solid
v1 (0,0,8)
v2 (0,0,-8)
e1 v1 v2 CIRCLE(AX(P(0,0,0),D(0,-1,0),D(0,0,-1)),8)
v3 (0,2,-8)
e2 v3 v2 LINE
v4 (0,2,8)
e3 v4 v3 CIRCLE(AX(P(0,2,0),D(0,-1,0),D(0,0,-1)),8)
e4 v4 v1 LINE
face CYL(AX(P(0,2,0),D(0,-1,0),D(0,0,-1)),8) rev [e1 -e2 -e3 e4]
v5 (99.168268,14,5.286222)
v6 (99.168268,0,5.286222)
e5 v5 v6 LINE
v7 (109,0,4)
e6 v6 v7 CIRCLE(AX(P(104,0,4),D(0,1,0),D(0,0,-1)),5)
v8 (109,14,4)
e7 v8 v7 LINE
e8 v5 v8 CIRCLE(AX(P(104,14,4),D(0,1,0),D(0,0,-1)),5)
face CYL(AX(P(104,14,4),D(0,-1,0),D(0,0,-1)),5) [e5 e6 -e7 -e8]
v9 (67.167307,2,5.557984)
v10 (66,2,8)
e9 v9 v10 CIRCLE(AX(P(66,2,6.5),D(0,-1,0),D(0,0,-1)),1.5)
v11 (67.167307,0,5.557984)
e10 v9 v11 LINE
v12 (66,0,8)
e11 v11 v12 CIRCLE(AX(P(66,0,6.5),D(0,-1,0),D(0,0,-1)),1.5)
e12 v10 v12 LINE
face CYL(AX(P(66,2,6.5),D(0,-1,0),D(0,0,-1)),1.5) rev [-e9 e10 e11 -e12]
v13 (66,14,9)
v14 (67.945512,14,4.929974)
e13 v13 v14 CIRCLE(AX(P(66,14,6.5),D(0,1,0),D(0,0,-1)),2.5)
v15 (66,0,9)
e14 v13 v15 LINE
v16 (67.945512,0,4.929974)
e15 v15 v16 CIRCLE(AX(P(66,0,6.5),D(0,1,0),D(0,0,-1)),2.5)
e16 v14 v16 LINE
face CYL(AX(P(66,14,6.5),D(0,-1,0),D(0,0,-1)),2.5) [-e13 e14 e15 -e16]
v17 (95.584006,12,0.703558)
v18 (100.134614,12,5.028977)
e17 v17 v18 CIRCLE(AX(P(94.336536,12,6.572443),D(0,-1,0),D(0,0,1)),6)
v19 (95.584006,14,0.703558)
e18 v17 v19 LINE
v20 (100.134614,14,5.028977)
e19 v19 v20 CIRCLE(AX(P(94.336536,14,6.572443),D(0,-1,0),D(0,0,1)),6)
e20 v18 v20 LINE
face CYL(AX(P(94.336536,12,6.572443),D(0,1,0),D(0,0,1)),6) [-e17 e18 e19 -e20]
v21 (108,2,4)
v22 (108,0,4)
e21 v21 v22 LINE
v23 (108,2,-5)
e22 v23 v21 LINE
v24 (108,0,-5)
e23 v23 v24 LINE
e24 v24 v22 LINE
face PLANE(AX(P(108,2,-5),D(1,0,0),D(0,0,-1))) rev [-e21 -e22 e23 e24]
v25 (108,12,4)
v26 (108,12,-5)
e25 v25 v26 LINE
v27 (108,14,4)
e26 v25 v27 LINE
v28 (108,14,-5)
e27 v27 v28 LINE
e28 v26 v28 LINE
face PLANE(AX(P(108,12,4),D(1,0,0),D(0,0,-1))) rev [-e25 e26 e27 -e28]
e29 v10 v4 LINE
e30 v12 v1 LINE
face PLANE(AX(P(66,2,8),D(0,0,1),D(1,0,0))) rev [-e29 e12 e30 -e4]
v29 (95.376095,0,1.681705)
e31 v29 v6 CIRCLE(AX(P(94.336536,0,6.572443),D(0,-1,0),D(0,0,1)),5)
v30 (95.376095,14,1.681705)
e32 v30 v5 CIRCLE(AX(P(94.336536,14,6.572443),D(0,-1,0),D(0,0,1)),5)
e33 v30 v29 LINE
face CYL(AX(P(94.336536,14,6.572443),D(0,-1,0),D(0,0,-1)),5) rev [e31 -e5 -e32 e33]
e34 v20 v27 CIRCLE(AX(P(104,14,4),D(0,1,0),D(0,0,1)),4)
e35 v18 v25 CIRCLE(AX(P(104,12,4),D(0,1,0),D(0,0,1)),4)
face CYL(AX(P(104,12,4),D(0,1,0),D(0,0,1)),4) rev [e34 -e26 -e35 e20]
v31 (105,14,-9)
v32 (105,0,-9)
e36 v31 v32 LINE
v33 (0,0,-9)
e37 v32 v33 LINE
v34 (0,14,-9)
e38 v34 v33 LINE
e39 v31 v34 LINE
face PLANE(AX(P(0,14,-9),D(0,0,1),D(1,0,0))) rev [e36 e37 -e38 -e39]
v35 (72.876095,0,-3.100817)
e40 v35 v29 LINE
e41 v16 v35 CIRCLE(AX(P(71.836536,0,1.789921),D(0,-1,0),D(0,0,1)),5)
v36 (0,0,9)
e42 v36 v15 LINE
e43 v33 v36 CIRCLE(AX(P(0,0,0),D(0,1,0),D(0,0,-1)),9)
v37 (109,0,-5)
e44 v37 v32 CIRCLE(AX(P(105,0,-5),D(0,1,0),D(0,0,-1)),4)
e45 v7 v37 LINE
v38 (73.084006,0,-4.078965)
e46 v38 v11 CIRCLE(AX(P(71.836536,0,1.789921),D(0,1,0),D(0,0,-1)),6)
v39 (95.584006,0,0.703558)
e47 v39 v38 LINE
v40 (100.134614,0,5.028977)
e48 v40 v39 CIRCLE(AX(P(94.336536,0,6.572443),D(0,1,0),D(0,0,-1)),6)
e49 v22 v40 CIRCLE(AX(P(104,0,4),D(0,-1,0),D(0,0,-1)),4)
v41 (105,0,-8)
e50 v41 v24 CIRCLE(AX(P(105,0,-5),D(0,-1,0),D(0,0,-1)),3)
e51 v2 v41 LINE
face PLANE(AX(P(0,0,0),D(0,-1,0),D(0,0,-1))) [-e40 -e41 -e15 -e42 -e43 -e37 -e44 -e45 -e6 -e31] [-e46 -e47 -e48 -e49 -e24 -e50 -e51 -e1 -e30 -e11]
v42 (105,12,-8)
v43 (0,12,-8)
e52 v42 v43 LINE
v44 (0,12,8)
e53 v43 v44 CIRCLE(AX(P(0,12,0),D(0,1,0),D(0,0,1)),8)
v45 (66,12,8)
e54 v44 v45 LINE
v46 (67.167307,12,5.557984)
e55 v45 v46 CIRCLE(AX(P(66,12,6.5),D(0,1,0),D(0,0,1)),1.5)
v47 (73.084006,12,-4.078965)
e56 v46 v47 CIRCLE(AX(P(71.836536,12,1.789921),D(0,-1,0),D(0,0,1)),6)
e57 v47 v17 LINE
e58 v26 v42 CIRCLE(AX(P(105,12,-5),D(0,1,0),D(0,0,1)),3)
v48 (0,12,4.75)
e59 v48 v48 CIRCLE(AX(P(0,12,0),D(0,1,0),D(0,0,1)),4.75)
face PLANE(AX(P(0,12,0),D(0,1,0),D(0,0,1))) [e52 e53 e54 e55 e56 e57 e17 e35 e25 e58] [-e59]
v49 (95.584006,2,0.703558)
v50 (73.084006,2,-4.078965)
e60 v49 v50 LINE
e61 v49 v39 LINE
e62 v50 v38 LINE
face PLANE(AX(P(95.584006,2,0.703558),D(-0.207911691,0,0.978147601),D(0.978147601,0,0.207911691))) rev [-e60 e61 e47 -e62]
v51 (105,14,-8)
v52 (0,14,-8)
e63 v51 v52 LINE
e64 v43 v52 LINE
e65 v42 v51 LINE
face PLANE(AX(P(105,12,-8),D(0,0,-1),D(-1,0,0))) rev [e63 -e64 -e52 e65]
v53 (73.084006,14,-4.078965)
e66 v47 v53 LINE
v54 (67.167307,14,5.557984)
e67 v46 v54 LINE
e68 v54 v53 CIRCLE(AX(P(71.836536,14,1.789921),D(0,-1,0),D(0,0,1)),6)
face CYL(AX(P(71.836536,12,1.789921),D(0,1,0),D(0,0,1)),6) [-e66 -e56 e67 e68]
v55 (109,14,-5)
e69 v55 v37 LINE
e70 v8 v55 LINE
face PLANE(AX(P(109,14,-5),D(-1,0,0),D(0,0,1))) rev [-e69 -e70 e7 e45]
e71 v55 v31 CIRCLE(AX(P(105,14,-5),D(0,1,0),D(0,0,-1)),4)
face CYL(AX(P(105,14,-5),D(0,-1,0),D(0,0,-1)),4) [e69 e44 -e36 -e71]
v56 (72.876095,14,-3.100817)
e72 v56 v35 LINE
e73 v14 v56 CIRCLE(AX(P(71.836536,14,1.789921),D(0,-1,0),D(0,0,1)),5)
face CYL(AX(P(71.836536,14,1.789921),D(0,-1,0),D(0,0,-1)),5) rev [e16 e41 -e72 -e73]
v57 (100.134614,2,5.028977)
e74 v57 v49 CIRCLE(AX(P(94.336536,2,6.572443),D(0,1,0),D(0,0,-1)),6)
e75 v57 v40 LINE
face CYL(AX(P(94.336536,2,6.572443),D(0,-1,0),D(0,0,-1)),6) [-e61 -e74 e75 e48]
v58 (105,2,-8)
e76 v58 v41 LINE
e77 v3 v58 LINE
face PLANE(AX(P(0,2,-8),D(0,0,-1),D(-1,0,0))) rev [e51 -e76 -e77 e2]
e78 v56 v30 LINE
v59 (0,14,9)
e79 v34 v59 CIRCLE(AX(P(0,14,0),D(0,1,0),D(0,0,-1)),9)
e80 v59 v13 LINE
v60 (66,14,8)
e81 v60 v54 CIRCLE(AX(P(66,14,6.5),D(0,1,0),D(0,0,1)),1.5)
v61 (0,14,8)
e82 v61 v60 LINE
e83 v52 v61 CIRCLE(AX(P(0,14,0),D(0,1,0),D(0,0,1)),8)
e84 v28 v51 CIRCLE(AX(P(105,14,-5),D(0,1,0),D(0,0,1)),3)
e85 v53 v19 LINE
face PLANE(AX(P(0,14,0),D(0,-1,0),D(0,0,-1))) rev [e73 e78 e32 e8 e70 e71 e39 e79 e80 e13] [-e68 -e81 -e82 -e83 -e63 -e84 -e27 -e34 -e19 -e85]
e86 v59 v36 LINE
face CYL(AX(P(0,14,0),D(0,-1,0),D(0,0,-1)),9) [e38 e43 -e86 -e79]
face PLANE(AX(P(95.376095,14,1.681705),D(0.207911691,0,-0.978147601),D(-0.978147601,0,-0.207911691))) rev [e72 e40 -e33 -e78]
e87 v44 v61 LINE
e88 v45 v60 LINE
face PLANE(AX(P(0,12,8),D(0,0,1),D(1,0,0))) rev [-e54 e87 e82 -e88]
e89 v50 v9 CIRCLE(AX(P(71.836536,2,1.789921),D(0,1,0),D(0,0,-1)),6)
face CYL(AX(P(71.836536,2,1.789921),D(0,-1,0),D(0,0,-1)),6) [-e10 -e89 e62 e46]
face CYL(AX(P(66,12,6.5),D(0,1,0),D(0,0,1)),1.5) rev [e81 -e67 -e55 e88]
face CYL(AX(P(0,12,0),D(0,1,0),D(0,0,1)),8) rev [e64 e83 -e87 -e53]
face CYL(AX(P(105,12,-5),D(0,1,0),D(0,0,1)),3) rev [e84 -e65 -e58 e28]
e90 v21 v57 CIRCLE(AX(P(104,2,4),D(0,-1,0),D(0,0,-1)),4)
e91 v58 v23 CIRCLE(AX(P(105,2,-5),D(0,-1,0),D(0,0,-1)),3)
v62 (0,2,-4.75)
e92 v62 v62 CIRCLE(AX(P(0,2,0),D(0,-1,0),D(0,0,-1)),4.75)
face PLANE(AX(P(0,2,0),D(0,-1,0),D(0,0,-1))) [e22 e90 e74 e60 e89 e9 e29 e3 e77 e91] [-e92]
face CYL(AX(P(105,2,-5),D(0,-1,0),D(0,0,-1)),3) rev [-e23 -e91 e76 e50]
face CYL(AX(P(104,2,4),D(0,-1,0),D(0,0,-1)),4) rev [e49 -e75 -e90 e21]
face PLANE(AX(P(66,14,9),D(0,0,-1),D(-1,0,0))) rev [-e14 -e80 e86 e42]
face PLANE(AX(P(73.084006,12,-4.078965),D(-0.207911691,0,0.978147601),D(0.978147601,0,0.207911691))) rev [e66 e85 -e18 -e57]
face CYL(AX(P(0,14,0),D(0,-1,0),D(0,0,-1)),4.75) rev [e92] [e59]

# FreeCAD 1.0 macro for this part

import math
import FreeCAD as App
import Part
import Sketcher
from FreeCAD import Vector
Q = App.Units.Quantity

doc = App.newDocument("Part")
body = doc.addObject("PartDesign::Body", "Body")

# Sketch on XZ plane
sketch1 = body.newObject("Sketcher::SketchObject", "Sketch")
sketch1.AttachmentSupport = (doc.getObject("XZ_Plane"), [""])
sketch1.MapMode = "FlatFace"
sketch1.addGeometry(Part.LineSegment(Vector(105, -9, 0), Vector(0, -9, 0)), False)
sketch1.addGeometry(Part.ArcOfCircle(Part.Circle(Vector(0, 0, 0), Vector(0, 0, 1), 9), math.radians(90), math.radians(270)), False)
sketch1.addGeometry(Part.LineSegment(Vector(0, 9, 0), Vector(66, 9, 0)), False)
sketch1.addGeometry(Part.ArcOfCircle(Part.Circle(Vector(66, 6.5, 0), Vector(0, 0, 1), 2.5), math.radians(-39), math.radians(90)), False)
sketch1.addGeometry(Part.ArcOfCircle(Part.Circle(Vector(71.8, 1.8, 0), Vector(0, 0, 1), 5), math.radians(141), math.radians(282)), False)
sketch1.addGeometry(Part.LineSegment(Vector(72.9, -3.1, 0), Vector(95.4, 1.7, 0)), False)
sketch1.addGeometry(Part.ArcOfCircle(Part.Circle(Vector(94.3, 6.6, 0), Vector(0, 0, 1), 5), math.radians(-78), math.radians(-15)), False)
sketch1.addGeometry(Part.ArcOfCircle(Part.Circle(Vector(104, 4, 0), Vector(0, 0, 1), 5), math.radians(0), math.radians(165)), False)
sketch1.addGeometry(Part.LineSegment(Vector(109, 4, 0), Vector(109, -5, 0)), False)
sketch1.addGeometry(Part.ArcOfCircle(Part.Circle(Vector(105, -5, 0), Vector(0, 0, 1), 4), math.radians(-90), math.radians(0)), False)
sketch1.addGeometry(Part.Circle(Vector(0, 0, 0), Vector(0, 0, 1), 4.8), False)
sketch1.addConstraint(Sketcher.Constraint("Tangent", 0, 2, 1, 2))
sketch1.addConstraint(Sketcher.Constraint("Tangent", 1, 1, 2, 1))
sketch1.addConstraint(Sketcher.Constraint("Tangent", 2, 2, 3, 2))
sketch1.addConstraint(Sketcher.Constraint("Tangent", 3, 1, 4, 1))
sketch1.addConstraint(Sketcher.Constraint("Tangent", 4, 2, 5, 1))
sketch1.addConstraint(Sketcher.Constraint("Tangent", 5, 2, 6, 1))
sketch1.addConstraint(Sketcher.Constraint("Tangent", 6, 2, 7, 2))
sketch1.addConstraint(Sketcher.Constraint("Tangent", 7, 1, 8, 1))
sketch1.addConstraint(Sketcher.Constraint("Tangent", 8, 2, 9, 2))
sketch1.addConstraint(Sketcher.Constraint("Tangent", 9, 1, 0, 1))
sketch1.addConstraint(Sketcher.Constraint("Horizontal", 0))
sketch1.addConstraint(Sketcher.Constraint("Horizontal", 2))
sketch1.addConstraint(Sketcher.Constraint("Vertical", 8))
sketch1.addConstraint(Sketcher.Constraint("Coincident", 1, 3, -1, 1))
sketch1.addConstraint(Sketcher.Constraint("Coincident", 10, 3, -1, 1))
sketch1.addConstraint(Sketcher.Constraint("Equal", 4, 6))
sketch1.addConstraint(Sketcher.Constraint("Equal", 6, 7))
sketch1.addConstraint(Sketcher.Constraint("Radius", 1, 9.0))
sketch1.addConstraint(Sketcher.Constraint("Radius", 4, 5.0))
sketch1.addConstraint(Sketcher.Constraint("Radius", 9, 4.0))
sketch1.addConstraint(Sketcher.Constraint("Diameter", 10, 9.5))
sketch1.addConstraint(Sketcher.Constraint("Radius", 3, 2.5))
sketch1.addConstraint(Sketcher.Constraint("DistanceX", 0, 2, 0, 1, 105.0))
sketch1.addConstraint(Sketcher.Constraint("DistanceX", 2, 1, 2, 2, 66.0))
sketch1.addConstraint(Sketcher.Constraint("DistanceY", 8, 2, 8, 1, 9.0))
sketch1.addConstraint(Sketcher.Constraint("Angle", 5, Q("12 deg")))
sketch1.addConstraint(Sketcher.Constraint("DistanceX", 4, 3, 6, 3, 22.5))
pad1 = body.newObject("PartDesign::Pad", "Pad")
pad1.Profile = sketch1
pad1.Length = 14
pad1.Reversed = True

# Sketch on XZ plane
sketch2 = body.newObject("Sketcher::SketchObject", "Sketch001")
sketch2.AttachmentSupport = (doc.getObject("XZ_Plane"), [""])
sketch2.MapMode = "FlatFace"
sketch2.AttachmentOffset = App.Placement(Vector(0, 0, -14), App.Rotation())
sketch2.addGeometry(Part.LineSegment(Vector(0, 8, 0), Vector(66, 8, 0)), False)
sketch2.addGeometry(Part.ArcOfCircle(Part.Circle(Vector(66, 6.5, 0), Vector(0, 0, 1), 1.5), math.radians(-39), math.radians(90)), False)
sketch2.addGeometry(Part.ArcOfCircle(Part.Circle(Vector(71.8, 1.8, 0), Vector(0, 0, 1), 6), math.radians(141), math.radians(282)), False)
sketch2.addGeometry(Part.LineSegment(Vector(73.1, -4.1, 0), Vector(95.6, 0.7, 0)), False)
sketch2.addGeometry(Part.ArcOfCircle(Part.Circle(Vector(94.3, 6.6, 0), Vector(0, 0, 1), 6), math.radians(-78), math.radians(-15)), False)
sketch2.addGeometry(Part.ArcOfCircle(Part.Circle(Vector(104, 4, 0), Vector(0, 0, 1), 4), math.radians(0), math.radians(165)), False)
sketch2.addGeometry(Part.LineSegment(Vector(108, 4, 0), Vector(108, -5, 0)), False)
sketch2.addGeometry(Part.ArcOfCircle(Part.Circle(Vector(105, -5, 0), Vector(0, 0, 1), 3), math.radians(-90), math.radians(0)), False)
sketch2.addGeometry(Part.LineSegment(Vector(105, -8, 0), Vector(0, -8, 0)), False)
sketch2.addGeometry(Part.ArcOfCircle(Part.Circle(Vector(0, 0, 0), Vector(0, 0, 1), 8), math.radians(90), math.radians(270)), False)
sketch2.addConstraint(Sketcher.Constraint("Tangent", 0, 2, 1, 2))
sketch2.addConstraint(Sketcher.Constraint("Tangent", 1, 1, 2, 1))
sketch2.addConstraint(Sketcher.Constraint("Tangent", 2, 2, 3, 1))
sketch2.addConstraint(Sketcher.Constraint("Tangent", 3, 2, 4, 1))
sketch2.addConstraint(Sketcher.Constraint("Tangent", 4, 2, 5, 2))
sketch2.addConstraint(Sketcher.Constraint("Tangent", 5, 1, 6, 1))
sketch2.addConstraint(Sketcher.Constraint("Tangent", 6, 2, 7, 2))
sketch2.addConstraint(Sketcher.Constraint("Tangent", 7, 1, 8, 1))
sketch2.addConstraint(Sketcher.Constraint("Tangent", 8, 2, 9, 2))
sketch2.addConstraint(Sketcher.Constraint("Tangent", 9, 1, 0, 1))
sketch2.addConstraint(Sketcher.Constraint("Horizontal", 0))
sketch2.addConstraint(Sketcher.Constraint("Vertical", 6))
sketch2.addConstraint(Sketcher.Constraint("Horizontal", 8))
sketch2.addConstraint(Sketcher.Constraint("Coincident", 9, 3, -1, 1))
sketch2.addConstraint(Sketcher.Constraint("Equal", 2, 4))
sketch2.addConstraint(Sketcher.Constraint("Radius", 2, 6.0))
sketch2.addConstraint(Sketcher.Constraint("Radius", 5, 4.0))
sketch2.addConstraint(Sketcher.Constraint("Radius", 7, 3.0))
sketch2.addConstraint(Sketcher.Constraint("Radius", 9, 8.0))
sketch2.addConstraint(Sketcher.Constraint("Radius", 1, 1.5))
sketch2.addConstraint(Sketcher.Constraint("DistanceX", 0, 1, 0, 2, 66.0))
sketch2.addConstraint(Sketcher.Constraint("DistanceX", 8, 2, 8, 1, 105.0))
sketch2.addConstraint(Sketcher.Constraint("DistanceY", 6, 2, 6, 1, 9.0))
sketch2.addConstraint(Sketcher.Constraint("Angle", 3, Q("12 deg")))
sketch2.addConstraint(Sketcher.Constraint("DistanceX", 2, 3, 4, 3, 22.5))
pocket1 = body.newObject("PartDesign::Pocket", "Pocket")
pocket1.Profile = sketch2
pocket1.Length = 2
pocket1.Reversed = True

# Sketch on XZ plane
sketch3 = body.newObject("Sketcher::SketchObject", "Sketch002")
sketch3.AttachmentSupport = (doc.getObject("XZ_Plane"), [""])
sketch3.MapMode = "FlatFace"
sketch3.addGeometry(Part.LineSegment(Vector(0, -8, 0), Vector(105, -8, 0)), False)
sketch3.addGeometry(Part.ArcOfCircle(Part.Circle(Vector(105, -5, 0), Vector(0, 0, 1), 3), math.radians(-90), math.radians(0)), False)
sketch3.addGeometry(Part.LineSegment(Vector(108, -5, 0), Vector(108, 4, 0)), False)
sketch3.addGeometry(Part.ArcOfCircle(Part.Circle(Vector(104, 4, 0), Vector(0, 0, 1), 4), math.radians(0), math.radians(165)), False)
sketch3.addGeometry(Part.ArcOfCircle(Part.Circle(Vector(94.3, 6.6, 0), Vector(0, 0, 1), 6), math.radians(-78), math.radians(-15)), False)
sketch3.addGeometry(Part.LineSegment(Vector(95.6, 0.7, 0), Vector(73.1, -4.1, 0)), False)
sketch3.addGeometry(Part.ArcOfCircle(Part.Circle(Vector(71.8, 1.8, 0), Vector(0, 0, 1), 6), math.radians(141), math.radians(282)), False)
sketch3.addGeometry(Part.ArcOfCircle(Part.Circle(Vector(66, 6.5, 0), Vector(0, 0, 1), 1.5), math.radians(-39), math.radians(90)), False)
sketch3.addGeometry(Part.LineSegment(Vector(66, 8, 0), Vector(0, 8, 0)), False)
sketch3.addGeometry(Part.ArcOfCircle(Part.Circle(Vector(0, 0, 0), Vector(0, 0, 1), 8), math.radians(90), math.radians(270)), False)
sketch3.addConstraint(Sketcher.Constraint("Tangent", 0, 2, 1, 1))
sketch3.addConstraint(Sketcher.Constraint("Tangent", 1, 2, 2, 1))
sketch3.addConstraint(Sketcher.Constraint("Tangent", 2, 2, 3, 1))
sketch3.addConstraint(Sketcher.Constraint("Tangent", 3, 2, 4, 2))
sketch3.addConstraint(Sketcher.Constraint("Tangent", 4, 1, 5, 1))
sketch3.addConstraint(Sketcher.Constraint("Tangent", 5, 2, 6, 2))
sketch3.addConstraint(Sketcher.Constraint("Tangent", 6, 1, 7, 1))
sketch3.addConstraint(Sketcher.Constraint("Tangent", 7, 2, 8, 1))
sketch3.addConstraint(Sketcher.Constraint("Tangent", 8, 2, 9, 1))
sketch3.addConstraint(Sketcher.Constraint("Tangent", 9, 2, 0, 1))
sketch3.addConstraint(Sketcher.Constraint("Horizontal", 0))
sketch3.addConstraint(Sketcher.Constraint("Vertical", 2))
sketch3.addConstraint(Sketcher.Constraint("Horizontal", 8))
sketch3.addConstraint(Sketcher.Constraint("Coincident", 9, 3, -1, 1))
sketch3.addConstraint(Sketcher.Constraint("Equal", 4, 6))
sketch3.addConstraint(Sketcher.Constraint("Radius", 1, 3.0))
sketch3.addConstraint(Sketcher.Constraint("Radius", 3, 4.0))
sketch3.addConstraint(Sketcher.Constraint("Radius", 4, 6.0))
sketch3.addConstraint(Sketcher.Constraint("Radius", 9, 8.0))
sketch3.addConstraint(Sketcher.Constraint("Radius", 7, 1.5))
sketch3.addConstraint(Sketcher.Constraint("DistanceX", 0, 1, 0, 2, 105.0))
sketch3.addConstraint(Sketcher.Constraint("DistanceX", 8, 2, 8, 1, 66.0))
sketch3.addConstraint(Sketcher.Constraint("DistanceY", 2, 1, 2, 2, 9.0))
sketch3.addConstraint(Sketcher.Constraint("Angle", 5, Q("-168 deg")))
sketch3.addConstraint(Sketcher.Constraint("DistanceX", 6, 3, 4, 3, 22.5))
pocket2 = body.newObject("PartDesign::Pocket", "Pocket001")
pocket2.Profile = sketch3
pocket2.Length = 2

doc.recompute()
